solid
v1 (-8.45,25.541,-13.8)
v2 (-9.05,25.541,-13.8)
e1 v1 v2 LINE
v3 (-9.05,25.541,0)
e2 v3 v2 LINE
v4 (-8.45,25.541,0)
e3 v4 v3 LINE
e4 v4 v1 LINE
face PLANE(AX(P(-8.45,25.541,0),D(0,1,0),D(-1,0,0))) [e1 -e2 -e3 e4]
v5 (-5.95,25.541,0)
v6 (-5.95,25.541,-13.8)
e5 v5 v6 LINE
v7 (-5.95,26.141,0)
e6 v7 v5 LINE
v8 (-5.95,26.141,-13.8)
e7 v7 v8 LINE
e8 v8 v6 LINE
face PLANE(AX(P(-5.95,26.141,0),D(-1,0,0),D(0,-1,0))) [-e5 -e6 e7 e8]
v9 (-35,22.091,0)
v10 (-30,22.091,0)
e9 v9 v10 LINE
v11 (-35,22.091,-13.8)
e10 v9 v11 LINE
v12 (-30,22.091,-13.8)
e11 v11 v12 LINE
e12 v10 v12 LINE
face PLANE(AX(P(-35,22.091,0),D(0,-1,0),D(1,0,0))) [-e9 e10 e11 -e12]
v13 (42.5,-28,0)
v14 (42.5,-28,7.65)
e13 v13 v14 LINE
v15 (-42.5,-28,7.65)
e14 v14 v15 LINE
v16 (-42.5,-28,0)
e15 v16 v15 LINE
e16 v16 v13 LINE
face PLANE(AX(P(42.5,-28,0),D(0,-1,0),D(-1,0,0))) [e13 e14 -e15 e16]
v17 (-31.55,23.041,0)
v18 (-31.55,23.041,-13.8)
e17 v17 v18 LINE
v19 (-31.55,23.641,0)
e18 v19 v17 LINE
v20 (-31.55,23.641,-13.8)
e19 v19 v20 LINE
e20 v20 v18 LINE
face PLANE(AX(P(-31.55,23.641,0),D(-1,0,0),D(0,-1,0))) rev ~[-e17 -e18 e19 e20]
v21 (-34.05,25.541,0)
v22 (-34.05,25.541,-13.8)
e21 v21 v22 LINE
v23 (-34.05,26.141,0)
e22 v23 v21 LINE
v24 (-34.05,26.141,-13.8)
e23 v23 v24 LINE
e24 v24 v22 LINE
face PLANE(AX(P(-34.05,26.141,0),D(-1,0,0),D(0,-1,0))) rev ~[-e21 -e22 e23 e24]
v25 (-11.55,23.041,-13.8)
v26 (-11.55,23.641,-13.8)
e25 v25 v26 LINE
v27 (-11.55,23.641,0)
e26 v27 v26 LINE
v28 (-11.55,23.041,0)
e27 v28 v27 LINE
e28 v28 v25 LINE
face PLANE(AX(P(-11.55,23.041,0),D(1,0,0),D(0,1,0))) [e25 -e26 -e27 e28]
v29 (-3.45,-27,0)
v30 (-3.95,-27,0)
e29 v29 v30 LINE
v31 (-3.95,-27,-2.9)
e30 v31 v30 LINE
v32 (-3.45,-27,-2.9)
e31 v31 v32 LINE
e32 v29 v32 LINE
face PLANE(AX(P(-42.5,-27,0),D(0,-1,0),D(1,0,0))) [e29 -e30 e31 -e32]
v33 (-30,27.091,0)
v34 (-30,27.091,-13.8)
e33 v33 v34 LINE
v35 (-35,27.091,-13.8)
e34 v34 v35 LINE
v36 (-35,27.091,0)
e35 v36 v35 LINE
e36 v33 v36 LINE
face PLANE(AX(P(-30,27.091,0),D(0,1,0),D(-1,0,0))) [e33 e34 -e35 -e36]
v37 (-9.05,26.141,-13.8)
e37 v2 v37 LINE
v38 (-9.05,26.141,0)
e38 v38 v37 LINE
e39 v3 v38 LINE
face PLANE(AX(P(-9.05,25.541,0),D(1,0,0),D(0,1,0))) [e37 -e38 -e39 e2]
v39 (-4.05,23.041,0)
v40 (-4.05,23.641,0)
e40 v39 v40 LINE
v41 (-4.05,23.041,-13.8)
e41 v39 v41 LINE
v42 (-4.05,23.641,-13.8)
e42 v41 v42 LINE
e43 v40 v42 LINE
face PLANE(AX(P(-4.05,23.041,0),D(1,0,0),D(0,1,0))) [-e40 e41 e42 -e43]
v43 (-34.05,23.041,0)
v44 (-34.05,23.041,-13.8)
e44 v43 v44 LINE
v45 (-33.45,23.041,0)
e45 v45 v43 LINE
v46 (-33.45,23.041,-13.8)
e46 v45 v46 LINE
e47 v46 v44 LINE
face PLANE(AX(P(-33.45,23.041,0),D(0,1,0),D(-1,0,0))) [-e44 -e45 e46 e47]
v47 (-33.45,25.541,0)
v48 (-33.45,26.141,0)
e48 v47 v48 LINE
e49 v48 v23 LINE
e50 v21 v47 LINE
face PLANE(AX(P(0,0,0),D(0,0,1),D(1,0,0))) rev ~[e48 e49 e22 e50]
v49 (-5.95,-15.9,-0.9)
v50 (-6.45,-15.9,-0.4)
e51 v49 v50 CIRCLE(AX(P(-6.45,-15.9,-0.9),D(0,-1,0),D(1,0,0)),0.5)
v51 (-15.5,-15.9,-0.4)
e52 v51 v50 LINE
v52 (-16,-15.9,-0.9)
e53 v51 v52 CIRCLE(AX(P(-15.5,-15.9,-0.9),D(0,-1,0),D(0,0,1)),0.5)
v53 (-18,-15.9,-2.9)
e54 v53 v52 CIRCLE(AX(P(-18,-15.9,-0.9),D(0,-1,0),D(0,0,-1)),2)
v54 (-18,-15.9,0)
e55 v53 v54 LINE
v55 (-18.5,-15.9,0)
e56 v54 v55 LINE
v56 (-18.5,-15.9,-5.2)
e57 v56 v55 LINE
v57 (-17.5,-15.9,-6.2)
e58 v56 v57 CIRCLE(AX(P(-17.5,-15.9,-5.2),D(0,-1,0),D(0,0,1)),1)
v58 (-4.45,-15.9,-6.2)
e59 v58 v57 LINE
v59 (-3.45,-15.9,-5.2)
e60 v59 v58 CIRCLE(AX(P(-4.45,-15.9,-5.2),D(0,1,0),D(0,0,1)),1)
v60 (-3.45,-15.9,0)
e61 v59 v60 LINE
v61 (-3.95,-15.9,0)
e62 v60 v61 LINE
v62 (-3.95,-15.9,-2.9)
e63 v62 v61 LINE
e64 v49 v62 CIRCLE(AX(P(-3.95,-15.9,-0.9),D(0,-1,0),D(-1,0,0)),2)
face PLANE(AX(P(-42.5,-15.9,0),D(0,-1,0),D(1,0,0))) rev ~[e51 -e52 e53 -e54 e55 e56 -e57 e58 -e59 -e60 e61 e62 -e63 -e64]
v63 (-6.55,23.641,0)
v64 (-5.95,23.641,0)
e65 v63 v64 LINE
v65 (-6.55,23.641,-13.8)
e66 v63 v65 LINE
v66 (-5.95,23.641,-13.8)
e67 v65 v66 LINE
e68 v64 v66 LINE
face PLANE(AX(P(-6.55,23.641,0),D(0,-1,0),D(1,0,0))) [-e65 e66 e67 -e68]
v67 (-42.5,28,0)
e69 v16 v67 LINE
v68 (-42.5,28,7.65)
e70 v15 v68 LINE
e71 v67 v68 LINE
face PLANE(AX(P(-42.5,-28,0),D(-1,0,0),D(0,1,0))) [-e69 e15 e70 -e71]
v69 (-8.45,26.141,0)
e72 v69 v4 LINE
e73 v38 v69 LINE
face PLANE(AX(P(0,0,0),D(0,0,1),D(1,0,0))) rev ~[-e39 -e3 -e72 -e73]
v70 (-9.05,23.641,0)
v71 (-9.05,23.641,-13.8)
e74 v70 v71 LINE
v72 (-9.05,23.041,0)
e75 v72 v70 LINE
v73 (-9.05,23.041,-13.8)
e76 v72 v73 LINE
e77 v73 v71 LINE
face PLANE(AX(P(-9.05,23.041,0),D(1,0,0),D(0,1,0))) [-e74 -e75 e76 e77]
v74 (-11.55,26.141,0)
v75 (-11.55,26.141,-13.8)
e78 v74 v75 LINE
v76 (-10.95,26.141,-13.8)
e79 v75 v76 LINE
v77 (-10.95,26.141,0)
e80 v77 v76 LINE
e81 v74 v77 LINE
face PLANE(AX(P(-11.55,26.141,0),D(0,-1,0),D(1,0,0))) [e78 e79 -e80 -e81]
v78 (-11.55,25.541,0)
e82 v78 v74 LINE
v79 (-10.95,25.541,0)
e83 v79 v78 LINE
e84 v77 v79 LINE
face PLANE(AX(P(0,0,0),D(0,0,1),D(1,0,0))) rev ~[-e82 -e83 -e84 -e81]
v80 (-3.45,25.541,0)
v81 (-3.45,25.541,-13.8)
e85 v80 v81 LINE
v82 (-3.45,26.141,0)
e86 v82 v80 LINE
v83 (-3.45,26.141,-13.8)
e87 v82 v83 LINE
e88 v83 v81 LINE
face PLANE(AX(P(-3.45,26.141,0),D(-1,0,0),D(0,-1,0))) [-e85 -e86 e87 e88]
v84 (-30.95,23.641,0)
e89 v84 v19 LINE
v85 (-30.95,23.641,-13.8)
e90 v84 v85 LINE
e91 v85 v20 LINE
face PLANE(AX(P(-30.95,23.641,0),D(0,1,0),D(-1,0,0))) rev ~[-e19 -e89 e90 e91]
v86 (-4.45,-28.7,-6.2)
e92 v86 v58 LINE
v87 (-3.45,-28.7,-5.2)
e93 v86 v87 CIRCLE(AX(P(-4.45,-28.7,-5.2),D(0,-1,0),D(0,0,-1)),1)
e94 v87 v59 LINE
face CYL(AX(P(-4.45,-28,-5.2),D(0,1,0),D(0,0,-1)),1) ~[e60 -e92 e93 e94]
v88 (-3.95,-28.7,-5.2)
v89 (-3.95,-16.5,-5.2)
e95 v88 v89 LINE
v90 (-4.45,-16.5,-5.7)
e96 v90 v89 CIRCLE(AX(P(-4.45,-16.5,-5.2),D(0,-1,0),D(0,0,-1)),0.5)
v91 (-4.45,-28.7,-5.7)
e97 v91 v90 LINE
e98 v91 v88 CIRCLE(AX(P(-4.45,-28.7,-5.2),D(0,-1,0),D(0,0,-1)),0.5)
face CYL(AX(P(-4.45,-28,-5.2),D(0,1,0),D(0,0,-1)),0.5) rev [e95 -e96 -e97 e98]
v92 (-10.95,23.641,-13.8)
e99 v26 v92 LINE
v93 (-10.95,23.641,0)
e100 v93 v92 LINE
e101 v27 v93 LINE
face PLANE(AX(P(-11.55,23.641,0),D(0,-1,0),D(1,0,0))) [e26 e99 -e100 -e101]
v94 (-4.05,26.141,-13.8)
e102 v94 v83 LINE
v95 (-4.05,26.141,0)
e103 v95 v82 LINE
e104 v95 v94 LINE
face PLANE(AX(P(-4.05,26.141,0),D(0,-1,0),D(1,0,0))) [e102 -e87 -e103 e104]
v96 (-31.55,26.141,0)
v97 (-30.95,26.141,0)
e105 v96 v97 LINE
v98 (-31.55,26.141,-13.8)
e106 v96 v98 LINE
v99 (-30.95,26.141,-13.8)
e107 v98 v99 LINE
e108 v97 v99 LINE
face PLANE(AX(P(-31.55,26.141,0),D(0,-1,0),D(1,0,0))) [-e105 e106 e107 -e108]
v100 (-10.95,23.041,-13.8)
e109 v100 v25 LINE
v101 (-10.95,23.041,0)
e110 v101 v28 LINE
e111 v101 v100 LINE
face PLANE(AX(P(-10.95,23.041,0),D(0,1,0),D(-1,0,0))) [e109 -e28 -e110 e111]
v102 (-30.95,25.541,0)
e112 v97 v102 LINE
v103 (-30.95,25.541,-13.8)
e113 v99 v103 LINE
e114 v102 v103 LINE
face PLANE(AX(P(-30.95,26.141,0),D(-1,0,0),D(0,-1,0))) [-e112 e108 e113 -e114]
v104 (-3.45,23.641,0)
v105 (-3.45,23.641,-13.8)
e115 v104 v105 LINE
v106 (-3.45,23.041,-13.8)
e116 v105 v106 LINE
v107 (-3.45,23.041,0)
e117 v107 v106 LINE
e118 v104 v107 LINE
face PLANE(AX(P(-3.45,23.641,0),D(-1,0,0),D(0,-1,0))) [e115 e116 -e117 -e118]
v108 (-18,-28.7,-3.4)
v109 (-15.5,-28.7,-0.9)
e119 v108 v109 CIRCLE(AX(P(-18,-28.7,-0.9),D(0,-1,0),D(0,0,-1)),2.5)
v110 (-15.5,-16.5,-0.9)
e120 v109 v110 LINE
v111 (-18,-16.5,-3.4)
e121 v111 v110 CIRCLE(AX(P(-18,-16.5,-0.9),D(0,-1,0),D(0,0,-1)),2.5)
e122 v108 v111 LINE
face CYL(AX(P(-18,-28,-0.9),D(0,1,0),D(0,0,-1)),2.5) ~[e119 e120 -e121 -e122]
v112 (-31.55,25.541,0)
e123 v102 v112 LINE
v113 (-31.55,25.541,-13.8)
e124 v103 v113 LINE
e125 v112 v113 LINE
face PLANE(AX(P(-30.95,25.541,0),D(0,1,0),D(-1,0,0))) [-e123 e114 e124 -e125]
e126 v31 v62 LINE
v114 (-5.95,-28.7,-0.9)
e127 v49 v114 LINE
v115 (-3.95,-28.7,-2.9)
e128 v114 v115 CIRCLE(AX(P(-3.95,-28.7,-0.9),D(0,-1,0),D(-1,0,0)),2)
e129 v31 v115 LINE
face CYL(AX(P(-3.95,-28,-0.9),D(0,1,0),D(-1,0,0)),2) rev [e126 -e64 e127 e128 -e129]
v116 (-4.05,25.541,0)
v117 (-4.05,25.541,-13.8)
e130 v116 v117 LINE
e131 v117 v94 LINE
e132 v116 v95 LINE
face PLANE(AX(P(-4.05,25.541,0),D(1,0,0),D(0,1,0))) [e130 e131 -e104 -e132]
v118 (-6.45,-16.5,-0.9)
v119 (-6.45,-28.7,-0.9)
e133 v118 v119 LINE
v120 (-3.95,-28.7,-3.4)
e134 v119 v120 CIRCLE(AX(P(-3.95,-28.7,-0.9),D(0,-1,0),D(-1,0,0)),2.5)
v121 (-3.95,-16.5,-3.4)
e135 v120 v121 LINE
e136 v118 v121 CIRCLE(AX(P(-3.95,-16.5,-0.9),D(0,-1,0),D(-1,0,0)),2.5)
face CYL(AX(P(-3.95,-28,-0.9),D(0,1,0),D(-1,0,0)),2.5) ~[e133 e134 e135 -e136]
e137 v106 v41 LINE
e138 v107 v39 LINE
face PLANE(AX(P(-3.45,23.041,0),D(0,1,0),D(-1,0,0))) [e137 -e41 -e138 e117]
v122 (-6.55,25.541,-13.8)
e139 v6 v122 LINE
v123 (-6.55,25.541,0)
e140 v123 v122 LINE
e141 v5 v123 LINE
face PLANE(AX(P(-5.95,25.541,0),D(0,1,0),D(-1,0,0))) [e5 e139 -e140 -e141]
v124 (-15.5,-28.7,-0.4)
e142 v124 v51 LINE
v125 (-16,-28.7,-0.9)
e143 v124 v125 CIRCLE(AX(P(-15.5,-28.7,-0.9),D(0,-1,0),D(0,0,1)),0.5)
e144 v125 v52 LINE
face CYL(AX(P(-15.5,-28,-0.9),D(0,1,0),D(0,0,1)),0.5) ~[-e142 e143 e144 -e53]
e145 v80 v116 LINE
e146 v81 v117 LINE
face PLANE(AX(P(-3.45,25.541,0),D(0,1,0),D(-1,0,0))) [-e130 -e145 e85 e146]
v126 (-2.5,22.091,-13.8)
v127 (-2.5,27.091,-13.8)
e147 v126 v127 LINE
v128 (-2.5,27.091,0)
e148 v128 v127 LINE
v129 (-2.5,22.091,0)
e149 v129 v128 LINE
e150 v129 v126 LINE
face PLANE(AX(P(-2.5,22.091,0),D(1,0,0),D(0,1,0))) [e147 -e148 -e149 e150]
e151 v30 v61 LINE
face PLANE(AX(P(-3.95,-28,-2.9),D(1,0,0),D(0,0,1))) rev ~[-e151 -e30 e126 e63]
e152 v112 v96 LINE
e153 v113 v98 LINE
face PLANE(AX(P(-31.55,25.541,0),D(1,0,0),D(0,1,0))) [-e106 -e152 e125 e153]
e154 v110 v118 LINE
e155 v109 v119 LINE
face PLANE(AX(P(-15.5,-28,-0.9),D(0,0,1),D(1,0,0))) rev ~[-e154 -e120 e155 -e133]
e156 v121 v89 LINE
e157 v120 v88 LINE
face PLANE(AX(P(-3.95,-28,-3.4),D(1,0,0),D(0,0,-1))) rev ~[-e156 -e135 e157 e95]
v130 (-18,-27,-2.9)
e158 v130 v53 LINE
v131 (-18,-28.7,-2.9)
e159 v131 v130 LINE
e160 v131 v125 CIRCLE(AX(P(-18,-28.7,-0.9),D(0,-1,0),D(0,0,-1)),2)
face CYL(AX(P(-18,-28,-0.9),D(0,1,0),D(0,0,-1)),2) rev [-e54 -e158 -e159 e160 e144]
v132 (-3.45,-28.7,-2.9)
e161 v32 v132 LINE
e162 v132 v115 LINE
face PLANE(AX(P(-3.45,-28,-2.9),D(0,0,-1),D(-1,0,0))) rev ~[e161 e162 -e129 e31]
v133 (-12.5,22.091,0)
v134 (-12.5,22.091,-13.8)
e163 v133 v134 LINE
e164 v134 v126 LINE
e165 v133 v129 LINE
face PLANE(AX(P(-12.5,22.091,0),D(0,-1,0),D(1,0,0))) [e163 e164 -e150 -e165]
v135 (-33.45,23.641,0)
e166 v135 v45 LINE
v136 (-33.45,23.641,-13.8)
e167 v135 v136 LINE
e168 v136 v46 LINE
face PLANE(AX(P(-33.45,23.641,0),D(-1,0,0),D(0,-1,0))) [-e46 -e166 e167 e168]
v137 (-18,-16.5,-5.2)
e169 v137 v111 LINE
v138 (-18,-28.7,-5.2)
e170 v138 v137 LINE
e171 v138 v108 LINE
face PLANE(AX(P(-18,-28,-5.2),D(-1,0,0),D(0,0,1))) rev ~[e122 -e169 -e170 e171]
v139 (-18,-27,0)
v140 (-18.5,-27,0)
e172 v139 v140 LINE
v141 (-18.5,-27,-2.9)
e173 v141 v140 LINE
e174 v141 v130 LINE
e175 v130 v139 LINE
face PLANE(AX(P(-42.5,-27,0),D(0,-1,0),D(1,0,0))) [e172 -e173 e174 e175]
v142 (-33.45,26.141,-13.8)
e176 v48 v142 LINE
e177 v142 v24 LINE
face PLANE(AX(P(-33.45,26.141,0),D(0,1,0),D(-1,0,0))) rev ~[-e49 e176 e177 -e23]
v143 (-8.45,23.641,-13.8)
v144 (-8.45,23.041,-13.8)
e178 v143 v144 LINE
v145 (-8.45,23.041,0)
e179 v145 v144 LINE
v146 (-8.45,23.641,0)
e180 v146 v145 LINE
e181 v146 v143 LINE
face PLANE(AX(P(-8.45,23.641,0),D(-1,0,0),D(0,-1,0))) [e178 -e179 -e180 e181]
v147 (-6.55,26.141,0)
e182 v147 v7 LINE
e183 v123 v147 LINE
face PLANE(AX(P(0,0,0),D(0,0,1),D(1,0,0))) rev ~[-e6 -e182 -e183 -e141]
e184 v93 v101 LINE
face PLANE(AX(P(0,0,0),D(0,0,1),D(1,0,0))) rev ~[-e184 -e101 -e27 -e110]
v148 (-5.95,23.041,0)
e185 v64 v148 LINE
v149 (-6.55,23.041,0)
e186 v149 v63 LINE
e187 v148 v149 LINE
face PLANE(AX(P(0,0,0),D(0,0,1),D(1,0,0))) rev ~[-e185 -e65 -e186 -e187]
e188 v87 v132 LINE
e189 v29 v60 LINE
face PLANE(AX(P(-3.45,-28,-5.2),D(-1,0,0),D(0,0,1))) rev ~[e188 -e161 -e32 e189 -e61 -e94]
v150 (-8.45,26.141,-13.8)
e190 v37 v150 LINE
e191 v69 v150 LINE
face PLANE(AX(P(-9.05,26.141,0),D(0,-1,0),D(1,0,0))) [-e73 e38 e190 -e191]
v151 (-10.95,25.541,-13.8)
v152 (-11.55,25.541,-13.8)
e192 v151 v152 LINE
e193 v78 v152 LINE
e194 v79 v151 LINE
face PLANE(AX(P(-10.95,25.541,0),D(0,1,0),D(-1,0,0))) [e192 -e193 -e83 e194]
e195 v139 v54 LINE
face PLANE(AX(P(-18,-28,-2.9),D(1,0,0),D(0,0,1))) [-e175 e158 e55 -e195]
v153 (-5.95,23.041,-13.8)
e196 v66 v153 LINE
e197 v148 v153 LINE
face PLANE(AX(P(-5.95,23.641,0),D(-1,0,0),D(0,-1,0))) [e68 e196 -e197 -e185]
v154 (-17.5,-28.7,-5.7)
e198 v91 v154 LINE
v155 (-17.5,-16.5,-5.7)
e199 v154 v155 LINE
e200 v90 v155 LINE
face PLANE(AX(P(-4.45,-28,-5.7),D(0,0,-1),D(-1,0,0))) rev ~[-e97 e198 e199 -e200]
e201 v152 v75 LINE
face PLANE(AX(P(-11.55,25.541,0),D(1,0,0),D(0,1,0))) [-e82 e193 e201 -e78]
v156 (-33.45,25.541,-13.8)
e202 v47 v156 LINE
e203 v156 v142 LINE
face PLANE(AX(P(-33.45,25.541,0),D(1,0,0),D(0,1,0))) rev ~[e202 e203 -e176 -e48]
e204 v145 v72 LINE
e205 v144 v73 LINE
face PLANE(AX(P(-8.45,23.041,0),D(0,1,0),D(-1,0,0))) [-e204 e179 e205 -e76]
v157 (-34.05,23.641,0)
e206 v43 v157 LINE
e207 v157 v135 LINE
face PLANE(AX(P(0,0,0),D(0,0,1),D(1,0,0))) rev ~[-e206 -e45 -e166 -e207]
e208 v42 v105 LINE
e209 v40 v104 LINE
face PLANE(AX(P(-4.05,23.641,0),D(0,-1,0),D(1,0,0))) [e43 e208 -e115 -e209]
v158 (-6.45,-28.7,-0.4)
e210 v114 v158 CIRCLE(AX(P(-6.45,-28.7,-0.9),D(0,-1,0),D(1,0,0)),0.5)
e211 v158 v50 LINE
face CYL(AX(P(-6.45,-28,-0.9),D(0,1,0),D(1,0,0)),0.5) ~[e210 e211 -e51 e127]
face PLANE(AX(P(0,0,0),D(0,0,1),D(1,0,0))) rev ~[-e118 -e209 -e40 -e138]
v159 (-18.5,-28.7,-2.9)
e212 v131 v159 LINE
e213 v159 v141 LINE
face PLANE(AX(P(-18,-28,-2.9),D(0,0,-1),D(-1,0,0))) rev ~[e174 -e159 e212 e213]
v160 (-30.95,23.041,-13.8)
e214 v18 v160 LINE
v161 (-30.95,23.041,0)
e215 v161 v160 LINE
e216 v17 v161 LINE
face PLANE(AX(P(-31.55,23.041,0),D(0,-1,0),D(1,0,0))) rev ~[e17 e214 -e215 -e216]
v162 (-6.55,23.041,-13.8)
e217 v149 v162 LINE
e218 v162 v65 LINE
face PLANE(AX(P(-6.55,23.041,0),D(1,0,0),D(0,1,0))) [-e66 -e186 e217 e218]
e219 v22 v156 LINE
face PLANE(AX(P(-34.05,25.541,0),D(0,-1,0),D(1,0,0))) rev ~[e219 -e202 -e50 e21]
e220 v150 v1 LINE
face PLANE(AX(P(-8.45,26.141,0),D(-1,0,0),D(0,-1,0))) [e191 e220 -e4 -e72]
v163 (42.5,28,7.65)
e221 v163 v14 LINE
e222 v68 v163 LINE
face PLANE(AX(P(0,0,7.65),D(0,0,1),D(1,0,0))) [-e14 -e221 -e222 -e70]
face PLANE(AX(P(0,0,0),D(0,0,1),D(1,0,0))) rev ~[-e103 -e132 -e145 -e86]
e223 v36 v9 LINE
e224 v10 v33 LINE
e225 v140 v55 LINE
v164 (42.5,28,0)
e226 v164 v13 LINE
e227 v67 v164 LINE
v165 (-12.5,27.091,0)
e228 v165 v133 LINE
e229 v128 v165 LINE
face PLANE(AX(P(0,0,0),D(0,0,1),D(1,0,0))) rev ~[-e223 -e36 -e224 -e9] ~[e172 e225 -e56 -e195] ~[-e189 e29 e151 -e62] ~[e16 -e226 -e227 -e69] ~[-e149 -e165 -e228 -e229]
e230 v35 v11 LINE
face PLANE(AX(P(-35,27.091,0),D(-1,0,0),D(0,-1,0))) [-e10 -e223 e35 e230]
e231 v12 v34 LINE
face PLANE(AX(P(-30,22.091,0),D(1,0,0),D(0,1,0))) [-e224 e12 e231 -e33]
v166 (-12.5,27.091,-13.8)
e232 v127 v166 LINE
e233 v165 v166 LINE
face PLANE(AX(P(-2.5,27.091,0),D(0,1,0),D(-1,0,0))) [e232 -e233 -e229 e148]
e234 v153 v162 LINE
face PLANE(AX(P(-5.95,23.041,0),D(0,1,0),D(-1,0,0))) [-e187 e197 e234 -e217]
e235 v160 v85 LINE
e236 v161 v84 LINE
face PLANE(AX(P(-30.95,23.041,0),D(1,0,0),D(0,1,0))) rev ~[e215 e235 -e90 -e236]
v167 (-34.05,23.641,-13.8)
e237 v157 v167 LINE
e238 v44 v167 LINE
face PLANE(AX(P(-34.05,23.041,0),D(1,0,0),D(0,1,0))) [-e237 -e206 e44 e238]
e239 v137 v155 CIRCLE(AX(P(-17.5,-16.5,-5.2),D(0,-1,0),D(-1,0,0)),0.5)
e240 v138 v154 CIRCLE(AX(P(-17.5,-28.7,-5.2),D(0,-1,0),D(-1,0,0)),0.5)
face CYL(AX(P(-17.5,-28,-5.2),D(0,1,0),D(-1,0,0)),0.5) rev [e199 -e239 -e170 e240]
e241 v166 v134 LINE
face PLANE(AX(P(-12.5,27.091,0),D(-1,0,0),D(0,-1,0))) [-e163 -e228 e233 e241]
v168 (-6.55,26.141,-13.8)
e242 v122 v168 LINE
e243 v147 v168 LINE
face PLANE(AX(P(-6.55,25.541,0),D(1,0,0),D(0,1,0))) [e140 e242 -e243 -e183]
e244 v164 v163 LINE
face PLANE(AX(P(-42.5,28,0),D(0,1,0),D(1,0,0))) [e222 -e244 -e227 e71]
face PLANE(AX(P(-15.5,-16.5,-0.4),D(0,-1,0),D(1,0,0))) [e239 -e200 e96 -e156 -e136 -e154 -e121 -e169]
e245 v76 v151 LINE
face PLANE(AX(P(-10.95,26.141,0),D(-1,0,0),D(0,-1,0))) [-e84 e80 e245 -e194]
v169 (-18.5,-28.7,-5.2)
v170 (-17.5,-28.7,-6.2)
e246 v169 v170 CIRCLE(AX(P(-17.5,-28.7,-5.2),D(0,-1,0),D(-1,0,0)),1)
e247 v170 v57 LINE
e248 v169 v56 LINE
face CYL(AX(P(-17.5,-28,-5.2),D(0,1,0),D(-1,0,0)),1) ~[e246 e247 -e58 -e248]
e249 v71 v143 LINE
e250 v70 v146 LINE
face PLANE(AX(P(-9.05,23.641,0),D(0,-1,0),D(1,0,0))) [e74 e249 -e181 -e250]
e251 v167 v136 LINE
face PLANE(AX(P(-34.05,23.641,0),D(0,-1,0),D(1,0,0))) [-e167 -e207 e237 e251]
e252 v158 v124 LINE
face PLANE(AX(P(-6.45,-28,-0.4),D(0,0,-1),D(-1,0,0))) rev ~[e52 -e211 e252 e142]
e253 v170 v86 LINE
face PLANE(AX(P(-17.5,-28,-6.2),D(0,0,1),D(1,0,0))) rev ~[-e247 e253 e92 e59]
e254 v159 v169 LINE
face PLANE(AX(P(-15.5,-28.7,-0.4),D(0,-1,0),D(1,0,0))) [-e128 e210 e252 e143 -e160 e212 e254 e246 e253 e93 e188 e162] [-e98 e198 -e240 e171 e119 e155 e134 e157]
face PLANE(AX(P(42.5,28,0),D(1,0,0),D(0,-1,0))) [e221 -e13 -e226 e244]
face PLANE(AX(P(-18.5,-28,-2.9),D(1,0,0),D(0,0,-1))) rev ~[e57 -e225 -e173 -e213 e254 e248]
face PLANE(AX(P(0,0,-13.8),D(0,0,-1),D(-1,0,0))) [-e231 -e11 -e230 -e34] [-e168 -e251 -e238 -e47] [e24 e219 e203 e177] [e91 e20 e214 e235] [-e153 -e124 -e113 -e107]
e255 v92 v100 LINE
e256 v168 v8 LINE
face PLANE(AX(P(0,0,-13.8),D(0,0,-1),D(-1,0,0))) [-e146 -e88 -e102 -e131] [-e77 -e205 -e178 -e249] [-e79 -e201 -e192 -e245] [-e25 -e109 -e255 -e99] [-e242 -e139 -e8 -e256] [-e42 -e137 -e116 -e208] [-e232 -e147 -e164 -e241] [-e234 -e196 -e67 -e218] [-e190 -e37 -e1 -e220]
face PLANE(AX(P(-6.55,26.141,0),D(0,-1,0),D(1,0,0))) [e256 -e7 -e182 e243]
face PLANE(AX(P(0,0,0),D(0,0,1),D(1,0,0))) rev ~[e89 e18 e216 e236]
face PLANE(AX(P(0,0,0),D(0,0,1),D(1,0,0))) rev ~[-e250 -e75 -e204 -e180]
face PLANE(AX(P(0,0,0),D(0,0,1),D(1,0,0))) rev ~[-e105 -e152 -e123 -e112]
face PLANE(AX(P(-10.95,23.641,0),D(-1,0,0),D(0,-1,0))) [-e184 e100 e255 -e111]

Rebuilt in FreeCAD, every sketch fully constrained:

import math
import FreeCAD as App
import Part
import Sketcher
from FreeCAD import Vector


def edges_at(feature, points):
    """Names of the edges that pass closest to the given points."""
    edges = feature.Shape.Edges
    near = lambda p: min(range(len(edges)), key=lambda i: edges[i].distToShape(Part.Vertex(*p))[0])
    return sorted({f"Edge{near(p) + 1}" for p in points})

doc = App.newDocument("Part")
body = doc.addObject("PartDesign::Body", "Body")

sketch1 = body.newObject("Sketcher::SketchObject", "Sketch")
sketch1.AttachmentSupport = (doc.getObject("XY_Plane"), [""])
sketch1.MapMode = "FlatFace"
sketch1.addGeometry([
    Part.LineSegment(Vector(42.5, 28, 0), Vector(-42.5, 28, 0)),
    Part.LineSegment(Vector(-42.5, 28, 0), Vector(-42.5, -28, 0)),
    Part.LineSegment(Vector(-42.5, -28, 0), Vector(42.5, -28, 0)),
    Part.LineSegment(Vector(42.5, -28, 0), Vector(42.5, 28, 0)),
], False)
sketch1.addConstraint([
    Sketcher.Constraint("Coincident", 0, 2, 1, 1),
    Sketcher.Constraint("Coincident", 1, 2, 2, 1),
    Sketcher.Constraint("Coincident", 2, 2, 3, 1),
    Sketcher.Constraint("Coincident", 3, 2, 0, 1),
    Sketcher.Constraint("Horizontal", 0),
    Sketcher.Constraint("Vertical", 1),
    Sketcher.Constraint("Horizontal", 2),
    Sketcher.Constraint("Vertical", 3),
    Sketcher.Constraint("Symmetric", 0, 2, 2, 2, -1, 1),
    Sketcher.Constraint("DistanceX", 0, 2, 0, 1, 85.0),
    Sketcher.Constraint("DistanceY", 1, 2, 1, 1, 56.0),
])
pad1 = body.newObject("PartDesign::Pad", "Pad")
pad1.Profile = sketch1
pad1.Length = 7.65

sketch2 = body.newObject("Sketcher::SketchObject", "Sketch001")
sketch2.AttachmentSupport = (doc.getObject("XY_Plane"), [""])
sketch2.MapMode = "FlatFace"
sketch2.addGeometry([
    Part.LineSegment(Vector(-35, 27.091, 0), Vector(-30, 27.091, 0)),
    Part.LineSegment(Vector(-30, 27.091, 0), Vector(-30, 22.091, 0)),
    Part.LineSegment(Vector(-30, 22.091, 0), Vector(-35, 22.091, 0)),
    Part.LineSegment(Vector(-35, 22.091, 0), Vector(-35, 27.091, 0)),
    Part.LineSegment(Vector(-30.95, 23.041, 0), Vector(-30.95, 23.641, 0)),
    Part.LineSegment(Vector(-30.95, 23.641, 0), Vector(-31.55, 23.641, 0)),
    Part.LineSegment(Vector(-31.55, 23.641, 0), Vector(-31.55, 23.041, 0)),
    Part.LineSegment(Vector(-31.55, 23.041, 0), Vector(-30.95, 23.041, 0)),
    Part.LineSegment(Vector(-33.45, 23.641, 0), Vector(-34.05, 23.641, 0)),
    Part.LineSegment(Vector(-34.05, 23.641, 0), Vector(-34.05, 23.041, 0)),
    Part.LineSegment(Vector(-34.05, 23.041, 0), Vector(-33.45, 23.041, 0)),
    Part.LineSegment(Vector(-33.45, 23.041, 0), Vector(-33.45, 23.641, 0)),
    Part.LineSegment(Vector(-31.55, 25.541, 0), Vector(-30.95, 25.541, 0)),
    Part.LineSegment(Vector(-30.95, 25.541, 0), Vector(-30.95, 26.141, 0)),
    Part.LineSegment(Vector(-30.95, 26.141, 0), Vector(-31.55, 26.141, 0)),
    Part.LineSegment(Vector(-31.55, 26.141, 0), Vector(-31.55, 25.541, 0)),
    Part.LineSegment(Vector(-34.05, 26.141, 0), Vector(-34.05, 25.541, 0)),
    Part.LineSegment(Vector(-34.05, 25.541, 0), Vector(-33.45, 25.541, 0)),
    Part.LineSegment(Vector(-33.45, 25.541, 0), Vector(-33.45, 26.141, 0)),
    Part.LineSegment(Vector(-33.45, 26.141, 0), Vector(-34.05, 26.141, 0)),
    Part.LineSegment(Vector(-2.5, 22.091, 0), Vector(-12.5, 22.091, 0)),
    Part.LineSegment(Vector(-12.5, 22.091, 0), Vector(-12.5, 27.091, 0)),
    Part.LineSegment(Vector(-12.5, 27.091, 0), Vector(-2.5, 27.091, 0)),
    Part.LineSegment(Vector(-2.5, 27.091, 0), Vector(-2.5, 22.091, 0)),
    Part.LineSegment(Vector(-4.05, 23.641, 0), Vector(-4.05, 23.041, 0)),
    Part.LineSegment(Vector(-4.05, 23.041, 0), Vector(-3.45, 23.041, 0)),
    Part.LineSegment(Vector(-3.45, 23.041, 0), Vector(-3.45, 23.641, 0)),
    Part.LineSegment(Vector(-3.45, 23.641, 0), Vector(-4.05, 23.641, 0)),
    Part.LineSegment(Vector(-6.55, 23.641, 0), Vector(-6.55, 23.041, 0)),
    Part.LineSegment(Vector(-6.55, 23.041, 0), Vector(-5.95, 23.041, 0)),
    Part.LineSegment(Vector(-5.95, 23.041, 0), Vector(-5.95, 23.641, 0)),
    Part.LineSegment(Vector(-5.95, 23.641, 0), Vector(-6.55, 23.641, 0)),
    Part.LineSegment(Vector(-9.05, 23.641, 0), Vector(-9.05, 23.041, 0)),
    Part.LineSegment(Vector(-9.05, 23.041, 0), Vector(-8.45, 23.041, 0)),
    Part.LineSegment(Vector(-8.45, 23.041, 0), Vector(-8.45, 23.641, 0)),
    Part.LineSegment(Vector(-8.45, 23.641, 0), Vector(-9.05, 23.641, 0)),
    Part.LineSegment(Vector(-10.95, 23.641, 0), Vector(-11.55, 23.641, 0)),
    Part.LineSegment(Vector(-11.55, 23.641, 0), Vector(-11.55, 23.041, 0)),
    Part.LineSegment(Vector(-11.55, 23.041, 0), Vector(-10.95, 23.041, 0)),
    Part.LineSegment(Vector(-10.95, 23.041, 0), Vector(-10.95, 23.641, 0)),
    Part.LineSegment(Vector(-4.05, 26.141, 0), Vector(-4.05, 25.541, 0)),
    Part.LineSegment(Vector(-4.05, 25.541, 0), Vector(-3.45, 25.541, 0)),
    Part.LineSegment(Vector(-3.45, 25.541, 0), Vector(-3.45, 26.141, 0)),
    Part.LineSegment(Vector(-3.45, 26.141, 0), Vector(-4.05, 26.141, 0)),
    Part.LineSegment(Vector(-6.55, 26.141, 0), Vector(-6.55, 25.541, 0)),
    Part.LineSegment(Vector(-6.55, 25.541, 0), Vector(-5.95, 25.541, 0)),
    Part.LineSegment(Vector(-5.95, 25.541, 0), Vector(-5.95, 26.141, 0)),
    Part.LineSegment(Vector(-5.95, 26.141, 0), Vector(-6.55, 26.141, 0)),
    Part.LineSegment(Vector(-9.05, 26.141, 0), Vector(-9.05, 25.541, 0)),
    Part.LineSegment(Vector(-9.05, 25.541, 0), Vector(-8.45, 25.541, 0)),
    Part.LineSegment(Vector(-8.45, 25.541, 0), Vector(-8.45, 26.141, 0)),
    Part.LineSegment(Vector(-8.45, 26.141, 0), Vector(-9.05, 26.141, 0)),
    Part.LineSegment(Vector(-11.55, 26.141, 0), Vector(-11.55, 25.541, 0)),
    Part.LineSegment(Vector(-11.55, 25.541, 0), Vector(-10.95, 25.541, 0)),
    Part.LineSegment(Vector(-10.95, 25.541, 0), Vector(-10.95, 26.141, 0)),
    Part.LineSegment(Vector(-10.95, 26.141, 0), Vector(-11.55, 26.141, 0)),
], False)
sketch2.addConstraint([
    Sketcher.Constraint("Coincident", 0, 2, 1, 1),
    Sketcher.Constraint("Coincident", 1, 2, 2, 1),
    Sketcher.Constraint("Coincident", 2, 2, 3, 1),
    Sketcher.Constraint("Coincident", 3, 2, 0, 1),
    Sketcher.Constraint("Coincident", 4, 2, 5, 1),
    Sketcher.Constraint("Coincident", 5, 2, 6, 1),
    Sketcher.Constraint("Coincident", 6, 2, 7, 1),
    Sketcher.Constraint("Coincident", 7, 2, 4, 1),
    Sketcher.Constraint("Coincident", 8, 2, 9, 1),
    Sketcher.Constraint("Coincident", 9, 2, 10, 1),
    Sketcher.Constraint("Coincident", 10, 2, 11, 1),
    Sketcher.Constraint("Coincident", 11, 2, 8, 1),
    Sketcher.Constraint("Coincident", 12, 2, 13, 1),
    Sketcher.Constraint("Coincident", 13, 2, 14, 1),
    Sketcher.Constraint("Coincident", 14, 2, 15, 1),
    Sketcher.Constraint("Coincident", 15, 2, 12, 1),
    Sketcher.Constraint("Coincident", 16, 2, 17, 1),
    Sketcher.Constraint("Coincident", 17, 2, 18, 1),
    Sketcher.Constraint("Coincident", 18, 2, 19, 1),
    Sketcher.Constraint("Coincident", 19, 2, 16, 1),
    Sketcher.Constraint("Coincident", 20, 2, 21, 1),
    Sketcher.Constraint("Coincident", 21, 2, 22, 1),
    Sketcher.Constraint("Coincident", 22, 2, 23, 1),
    Sketcher.Constraint("Coincident", 23, 2, 20, 1),
    Sketcher.Constraint("Coincident", 24, 2, 25, 1),
    Sketcher.Constraint("Coincident", 25, 2, 26, 1),
    Sketcher.Constraint("Coincident", 26, 2, 27, 1),
    Sketcher.Constraint("Coincident", 27, 2, 24, 1),
    Sketcher.Constraint("Coincident", 28, 2, 29, 1),
    Sketcher.Constraint("Coincident", 29, 2, 30, 1),
    Sketcher.Constraint("Coincident", 30, 2, 31, 1),
    Sketcher.Constraint("Coincident", 31, 2, 28, 1),
    Sketcher.Constraint("Coincident", 32, 2, 33, 1),
    Sketcher.Constraint("Coincident", 33, 2, 34, 1),
    Sketcher.Constraint("Coincident", 34, 2, 35, 1),
    Sketcher.Constraint("Coincident", 35, 2, 32, 1),
    Sketcher.Constraint("Coincident", 36, 2, 37, 1),
    Sketcher.Constraint("Coincident", 37, 2, 38, 1),
    Sketcher.Constraint("Coincident", 38, 2, 39, 1),
    Sketcher.Constraint("Coincident", 39, 2, 36, 1),
    Sketcher.Constraint("Coincident", 40, 2, 41, 1),
    Sketcher.Constraint("Coincident", 41, 2, 42, 1),
    Sketcher.Constraint("Coincident", 42, 2, 43, 1),
    Sketcher.Constraint("Coincident", 43, 2, 40, 1),
    Sketcher.Constraint("Coincident", 44, 2, 45, 1),
    Sketcher.Constraint("Coincident", 45, 2, 46, 1),
    Sketcher.Constraint("Coincident", 46, 2, 47, 1),
    Sketcher.Constraint("Coincident", 47, 2, 44, 1),
    Sketcher.Constraint("Coincident", 48, 2, 49, 1),
    Sketcher.Constraint("Coincident", 49, 2, 50, 1),
    Sketcher.Constraint("Coincident", 50, 2, 51, 1),
    Sketcher.Constraint("Coincident", 51, 2, 48, 1),
    Sketcher.Constraint("Coincident", 52, 2, 53, 1),
    Sketcher.Constraint("Coincident", 53, 2, 54, 1),
    Sketcher.Constraint("Coincident", 54, 2, 55, 1),
    Sketcher.Constraint("Coincident", 55, 2, 52, 1),
    Sketcher.Constraint("Horizontal", 0),
    Sketcher.Constraint("Vertical", 1),
    Sketcher.Constraint("Horizontal", 2),
    Sketcher.Constraint("Vertical", 3),
    Sketcher.Constraint("Vertical", 4),
    Sketcher.Constraint("Horizontal", 5),
    Sketcher.Constraint("Vertical", 6),
    Sketcher.Constraint("Horizontal", 7),
    Sketcher.Constraint("Horizontal", 8),
    Sketcher.Constraint("Vertical", 9),
    Sketcher.Constraint("Horizontal", 10),
    Sketcher.Constraint("Vertical", 11),
    Sketcher.Constraint("Horizontal", 12),
    Sketcher.Constraint("Vertical", 13),
    Sketcher.Constraint("Horizontal", 14),
    Sketcher.Constraint("Vertical", 15),
    Sketcher.Constraint("Vertical", 16),
    Sketcher.Constraint("Horizontal", 17),
    Sketcher.Constraint("Vertical", 18),
    Sketcher.Constraint("Horizontal", 19),
    Sketcher.Constraint("Horizontal", 20),
    Sketcher.Constraint("Vertical", 21),
    Sketcher.Constraint("Horizontal", 22),
    Sketcher.Constraint("Vertical", 23),
    Sketcher.Constraint("Vertical", 24),
    Sketcher.Constraint("Horizontal", 25),
    Sketcher.Constraint("Vertical", 26),
    Sketcher.Constraint("Horizontal", 27),
    Sketcher.Constraint("Vertical", 28),
    Sketcher.Constraint("Horizontal", 29),
    Sketcher.Constraint("Vertical", 30),
    Sketcher.Constraint("Horizontal", 31),
    Sketcher.Constraint("Vertical", 32),
    Sketcher.Constraint("Horizontal", 33),
    Sketcher.Constraint("Vertical", 34),
    Sketcher.Constraint("Horizontal", 35),
    Sketcher.Constraint("Horizontal", 36),
    Sketcher.Constraint("Vertical", 37),
    Sketcher.Constraint("Horizontal", 38),
    Sketcher.Constraint("Vertical", 39),
    Sketcher.Constraint("Vertical", 40),
    Sketcher.Constraint("Horizontal", 41),
    Sketcher.Constraint("Vertical", 42),
    Sketcher.Constraint("Horizontal", 43),
    Sketcher.Constraint("Vertical", 44),
    Sketcher.Constraint("Horizontal", 45),
    Sketcher.Constraint("Vertical", 46),
    Sketcher.Constraint("Horizontal", 47),
    Sketcher.Constraint("Vertical", 48),
    Sketcher.Constraint("Horizontal", 49),
    Sketcher.Constraint("Vertical", 50),
    Sketcher.Constraint("Horizontal", 51),
    Sketcher.Constraint("Vertical", 52),
    Sketcher.Constraint("Horizontal", 53),
    Sketcher.Constraint("Vertical", 54),
    Sketcher.Constraint("Horizontal", 55),
    Sketcher.Constraint("Horizontal", 5, 2, 8, 2),
    Sketcher.Constraint("Horizontal", 7, 2, 9, 2),
    Sketcher.Constraint("Horizontal", 15, 2, 16, 2),
    Sketcher.Constraint("Horizontal", 14, 2, 18, 2),
    Sketcher.Constraint("Horizontal", 2, 2, 20, 2),
    Sketcher.Constraint("Horizontal", 3, 2, 21, 2),
    Sketcher.Constraint("Horizontal", 10, 2, 24, 2),
    Sketcher.Constraint("Horizontal", 11, 2, 26, 2),
    Sketcher.Constraint("Horizontal", 25, 2, 28, 2),
    Sketcher.Constraint("Horizontal", 27, 2, 30, 2),
    Sketcher.Constraint("Horizontal", 29, 2, 32, 2),
    Sketcher.Constraint("Horizontal", 31, 2, 34, 2),
    Sketcher.Constraint("Horizontal", 35, 2, 36, 2),
    Sketcher.Constraint("Horizontal", 33, 2, 37, 2),
    Sketcher.Constraint("Horizontal", 17, 2, 40, 2),
    Sketcher.Constraint("Horizontal", 19, 2, 42, 2),
    Sketcher.Constraint("Horizontal", 41, 2, 44, 2),
    Sketcher.Constraint("Horizontal", 43, 2, 46, 2),
    Sketcher.Constraint("Horizontal", 45, 2, 48, 2),
    Sketcher.Constraint("Horizontal", 47, 2, 50, 2),
    Sketcher.Constraint("Horizontal", 49, 2, 52, 2),
    Sketcher.Constraint("Horizontal", 51, 2, 54, 2),
    Sketcher.Constraint("Vertical", 7, 2, 12, 2),
    Sketcher.Constraint("Vertical", 6, 2, 14, 2),
    Sketcher.Constraint("Vertical", 9, 2, 16, 2),
    Sketcher.Constraint("Vertical", 11, 2, 17, 2),
    Sketcher.Constraint("Vertical", 27, 2, 40, 2),
    Sketcher.Constraint("Vertical", 26, 2, 41, 2),
    Sketcher.Constraint("Vertical", 31, 2, 44, 2),
    Sketcher.Constraint("Vertical", 30, 2, 45, 2),
    Sketcher.Constraint("Vertical", 35, 2, 48, 2),
    Sketcher.Constraint("Vertical", 34, 2, 49, 2),
    Sketcher.Constraint("Vertical", 37, 2, 52, 2),
    Sketcher.Constraint("Vertical", 39, 2, 53, 2),
    Sketcher.Constraint("Equal", 7, 8),
    Sketcher.Constraint("Equal", 19, 25),
    Sketcher.Constraint("Equal", 27, 29),
    Sketcher.Constraint("Equal", 31, 33),
    Sketcher.Constraint("Equal", 35, 36),
    Sketcher.Constraint("Equal", 2, 1),
    Sketcher.Constraint("Equal", 55, 4),
    Sketcher.Constraint("Equal", 11, 13),
    Sketcher.Constraint("DistanceX", 0, 1, 0, 2, 5.0),
    Sketcher.Constraint("DistanceX", 20, 2, 20, 1, 10.0),
    Sketcher.Constraint("DistanceX", 5, 2, 5, 1, 0.6),
    Sketcher.Constraint("DistanceX", 22, 2, -1, 1, 2.5),
    Sketcher.Constraint("DistanceX", 8, 2, 5, 2, 2.5),
    Sketcher.Constraint("DistanceY", 7, 2, 12, 2, 2.5),
    Sketcher.Constraint("DistanceX", 1, 2, 20, 2, 17.5),
    Sketcher.Constraint("DistanceX", 28, 2, 24, 2, 2.5),
    Sketcher.Constraint("DistanceX", 32, 2, 28, 2, 2.5),
    Sketcher.Constraint("DistanceX", 36, 2, 35, 2, 2.5),
    Sketcher.Constraint("DistanceX", 4, 2, -1, 1, 30.95),
    Sketcher.Constraint("DistanceX", 24, 2, -1, 1, 4.05),
    Sketcher.Constraint("DistanceY", 1, 2, 4, 2, 1.55),
    Sketcher.Constraint("DistanceY", -1, 1, 0, 2, 27.091),
])
pad2 = body.newObject("PartDesign::Pad", "Pad001")
pad2.Profile = sketch2
pad2.Length = 13.8
pad2.Reversed = True

sketch3 = body.newObject("Sketcher::SketchObject", "Sketch002")
sketch3.AttachmentSupport = (doc.getObject("XZ_Plane"), [""])
sketch3.MapMode = "FlatFace"
sketch3.AttachmentOffset = App.Placement(Vector(0, 0, 28), App.Rotation())
sketch3.addGeometry([
    Part.LineSegment(Vector(-3.45, 0, 0), Vector(-3.95, 0, 0)),
    Part.LineSegment(Vector(-3.95, 0, 0), Vector(-3.95, -2.9, 0)),
    Part.ArcOfCircle(Part.Circle(Vector(-3.95, -0.9, 0), Vector(0, 0, 1), 2), math.radians(180), math.radians(270)),
    Part.ArcOfCircle(Part.Circle(Vector(-6.45, -0.9, 0), Vector(0, 0, 1), 0.5), math.radians(0), math.radians(90)),
    Part.LineSegment(Vector(-6.45, -0.4, 0), Vector(-15.5, -0.4, 0)),
    Part.ArcOfCircle(Part.Circle(Vector(-15.5, -0.9, 0), Vector(0, 0, 1), 0.5), math.radians(90), math.radians(180)),
    Part.ArcOfCircle(Part.Circle(Vector(-18, -0.9, 0), Vector(0, 0, 1), 2), math.radians(-90), math.radians(0)),
    Part.LineSegment(Vector(-18, -2.9, 0), Vector(-18, 0, 0)),
    Part.LineSegment(Vector(-18, 0, 0), Vector(-18.5, 0, 0)),
    Part.LineSegment(Vector(-18.5, 0, 0), Vector(-18.5, -6.2, 0)),
    Part.LineSegment(Vector(-18.5, -6.2, 0), Vector(-3.45, -6.2, 0)),
    Part.LineSegment(Vector(-3.45, -6.2, 0), Vector(-3.45, 0, 0)),
], False)
sketch3.addConstraint([
    Sketcher.Constraint("Coincident", 0, 2, 1, 1),
    Sketcher.Constraint("Coincident", 1, 2, 2, 2),
    Sketcher.Constraint("Tangent", 2, 1, 3, 1),
    Sketcher.Constraint("Tangent", 3, 2, 4, 1),
    Sketcher.Constraint("Tangent", 4, 2, 5, 1),
    Sketcher.Constraint("Tangent", 5, 2, 6, 2),
    Sketcher.Constraint("Coincident", 6, 1, 7, 1),
    Sketcher.Constraint("Coincident", 7, 2, 8, 1),
    Sketcher.Constraint("Coincident", 8, 2, 9, 1),
    Sketcher.Constraint("Coincident", 9, 2, 10, 1),
    Sketcher.Constraint("Coincident", 10, 2, 11, 1),
    Sketcher.Constraint("Coincident", 11, 2, 0, 1),
    Sketcher.Constraint("Horizontal", 0),
    Sketcher.Constraint("Vertical", 1),
    Sketcher.Constraint("Horizontal", 4),
    Sketcher.Constraint("Vertical", 7),
    Sketcher.Constraint("Horizontal", 8),
    Sketcher.Constraint("Vertical", 9),
    Sketcher.Constraint("Horizontal", 10),
    Sketcher.Constraint("Vertical", 11),
    Sketcher.Constraint("Equal", 3, 5),
    Sketcher.Constraint("Equal", 2, 6),
    Sketcher.Constraint("PointOnObject", 0, 2, -1),
    Sketcher.Constraint("PointOnObject", 7, 2, -1),
    Sketcher.Constraint("Horizontal", 2, 3, 3, 3),
    Sketcher.Constraint("Horizontal", 5, 3, 6, 3),
    Sketcher.Constraint("Vertical", 2, 3, 0, 2),
    Sketcher.Constraint("Equal", 0, 8),
    Sketcher.Constraint("Radius", 2, 2.0),
    Sketcher.Constraint("Radius", 3, 0.5),
    Sketcher.Constraint("DistanceX", 0, 2, 0, 1, 0.5),
    Sketcher.Constraint("DistanceY", 9, 2, 9, 1, 6.2),
    Sketcher.Constraint("DistanceX", 6, 1, 5, 2, 2.0),
    Sketcher.Constraint("DistanceY", 9, 2, 6, 1, 3.3),
    Sketcher.Constraint("DistanceX", 6, 3, -1, 1, 18.0),
    Sketcher.Constraint("DistanceX", 4, 2, 4, 1, 9.05),
])
pad3 = body.newObject("PartDesign::Pad", "Pad002")
pad3.Profile = sketch3
pad3.Length = 12.1
pad3.Reversed = True
doc.recompute()

fillet = body.newObject("PartDesign::Fillet", "Fillet")
fillet.Base = (pad3, edges_at(pad3, [(-18.5, -21.95, -6.2), (-3.45, -21.95, -6.2)]))
fillet.Radius = 1

sketch4 = body.newObject("Sketcher::SketchObject", "Sketch003")
sketch4.AttachmentSupport = (doc.getObject("XZ_Plane"), [""])
sketch4.MapMode = "FlatFace"
sketch4.AttachmentOffset = App.Placement(Vector(0, 0, 28), App.Rotation())
sketch4.addGeometry([
    Part.LineSegment(Vector(-3.45, -2.9, 0), Vector(-3.45, 0, 0)),
    Part.LineSegment(Vector(-3.45, 0, 0), Vector(-3.95, 0, 0)),
    Part.LineSegment(Vector(-3.95, 0, 0), Vector(-3.95, -2.9, 0)),
    Part.LineSegment(Vector(-3.95, -2.9, 0), Vector(-3.45, -2.9, 0)),
    Part.LineSegment(Vector(-18, -2.9, 0), Vector(-18, 0, 0)),
    Part.LineSegment(Vector(-18, 0, 0), Vector(-18.5, 0, 0)),
    Part.LineSegment(Vector(-18.5, 0, 0), Vector(-18.5, -2.9, 0)),
    Part.LineSegment(Vector(-18.5, -2.9, 0), Vector(-18, -2.9, 0)),
], False)
sketch4.addConstraint([
    Sketcher.Constraint("Coincident", 0, 2, 1, 1),
    Sketcher.Constraint("Coincident", 1, 2, 2, 1),
    Sketcher.Constraint("Coincident", 2, 2, 3, 1),
    Sketcher.Constraint("Coincident", 3, 2, 0, 1),
    Sketcher.Constraint("Coincident", 4, 2, 5, 1),
    Sketcher.Constraint("Coincident", 5, 2, 6, 1),
    Sketcher.Constraint("Coincident", 6, 2, 7, 1),
    Sketcher.Constraint("Coincident", 7, 2, 4, 1),
    Sketcher.Constraint("Vertical", 0),
    Sketcher.Constraint("Horizontal", 1),
    Sketcher.Constraint("Vertical", 2),
    Sketcher.Constraint("Horizontal", 3),
    Sketcher.Constraint("Vertical", 4),
    Sketcher.Constraint("Horizontal", 5),
    Sketcher.Constraint("Vertical", 6),
    Sketcher.Constraint("Horizontal", 7),
    Sketcher.Constraint("PointOnObject", 0, 2, -1),
    Sketcher.Constraint("PointOnObject", 4, 2, -1),
    Sketcher.Constraint("Horizontal", 3, 2, 6, 2),
    Sketcher.Constraint("Equal", 3, 5),
    Sketcher.Constraint("DistanceX", 1, 2, 1, 1, 0.5),
    Sketcher.Constraint("DistanceY", 0, 1, 0, 2, 2.9),
    Sketcher.Constraint("DistanceX", 4, 2, -1, 1, 18.0),
    Sketcher.Constraint("DistanceX", 0, 2, -1, 1, 3.45),
])
pocket1 = body.newObject("PartDesign::Pocket", "Pocket")
pocket1.Profile = sketch4
pocket1.Length = 1

sketch5 = body.newObject("Sketcher::SketchObject", "Sketch004")
sketch5.AttachmentSupport = (doc.getObject("XZ_Plane"), [""])
sketch5.MapMode = "FlatFace"
sketch5.AttachmentOffset = App.Placement(Vector(0, 0, 28), App.Rotation())
sketch5.addGeometry([
    Part.LineSegment(Vector(-18, -3.4, 0), Vector(-18, -5.2, 0)),
    Part.ArcOfCircle(Part.Circle(Vector(-17.5, -5.2, 0), Vector(0, 0, 1), 0.5), math.radians(180), math.radians(270)),
    Part.LineSegment(Vector(-17.5, -5.7, 0), Vector(-4.45, -5.7, 0)),
    Part.ArcOfCircle(Part.Circle(Vector(-4.45, -5.2, 0), Vector(0, 0, 1), 0.5), math.radians(-90), math.radians(0)),
    Part.LineSegment(Vector(-3.95, -5.2, 0), Vector(-3.95, -3.4, 0)),
    Part.ArcOfCircle(Part.Circle(Vector(-3.95, -0.9, 0), Vector(0, 0, 1), 2.5), math.radians(180), math.radians(270)),
    Part.LineSegment(Vector(-6.45, -0.9, 0), Vector(-15.5, -0.9, 0)),
    Part.ArcOfCircle(Part.Circle(Vector(-18, -0.9, 0), Vector(0, 0, 1), 2.5), math.radians(-90), math.radians(0)),
], False)
sketch5.addConstraint([
    Sketcher.Constraint("Tangent", 0, 2, 1, 1),
    Sketcher.Constraint("Tangent", 1, 2, 2, 1),
    Sketcher.Constraint("Tangent", 2, 2, 3, 1),
    Sketcher.Constraint("Tangent", 3, 2, 4, 1),
    Sketcher.Constraint("Coincident", 4, 2, 5, 2),
    Sketcher.Constraint("Coincident", 5, 1, 6, 1),
    Sketcher.Constraint("Coincident", 6, 2, 7, 2),
    Sketcher.Constraint("Coincident", 7, 1, 0, 1),
    Sketcher.Constraint("Vertical", 0),
    Sketcher.Constraint("Horizontal", 2),
    Sketcher.Constraint("Vertical", 4),
    Sketcher.Constraint("Horizontal", 6),
    Sketcher.Constraint("Equal", 1, 3),
    Sketcher.Constraint("Equal", 5, 7),
    Sketcher.Constraint("Horizontal", 5, 3, 7, 3),
    Sketcher.Constraint("Horizontal", 7, 3, 5, 1),
    Sketcher.Constraint("Vertical", 7, 3, 0, 2),
    Sketcher.Constraint("Vertical", 5, 3, 3, 2),
    Sketcher.Constraint("Radius", 1, 0.5),
    Sketcher.Constraint("Radius", 5, 2.5),
    Sketcher.Constraint("DistanceY", 0, 2, 0, 1, 1.8),
    Sketcher.Constraint("DistanceX", 7, 3, -1, 1, 18.0),
    Sketcher.Constraint("DistanceX", 2, 1, 2, 2, 13.05),
    Sketcher.Constraint("DistanceY", 1, 3, -1, 1, 5.2),
])
pocket2 = body.newObject("PartDesign::Pocket", "Pocket001")
pocket2.Profile = sketch5
pocket2.Length = 11.5

sketch6 = body.newObject("Sketcher::SketchObject", "Sketch005")
sketch6.AttachmentSupport = (doc.getObject("XZ_Plane"), [""])
sketch6.MapMode = "FlatFace"
sketch6.AttachmentOffset = App.Placement(Vector(0, 0, 28), App.Rotation())
sketch6.addGeometry([
    Part.LineSegment(Vector(-3.45, -5.2, 0), Vector(-3.45, -2.9, 0)),
    Part.LineSegment(Vector(-3.45, -2.9, 0), Vector(-3.95, -2.9, 0)),
    Part.ArcOfCircle(Part.Circle(Vector(-3.95, -0.9, 0), Vector(0, 0, 1), 2), math.radians(180), math.radians(270)),
    Part.ArcOfCircle(Part.Circle(Vector(-6.45, -0.9, 0), Vector(0, 0, 1), 0.5), math.radians(0), math.radians(90)),
    Part.LineSegment(Vector(-6.45, -0.4, 0), Vector(-15.5, -0.4, 0)),
    Part.ArcOfCircle(Part.Circle(Vector(-15.5, -0.9, 0), Vector(0, 0, 1), 0.5), math.radians(90), math.radians(180)),
    Part.ArcOfCircle(Part.Circle(Vector(-18, -0.9, 0), Vector(0, 0, 1), 2), math.radians(-90), math.radians(0)),
    Part.LineSegment(Vector(-18, -2.9, 0), Vector(-18.5, -2.9, 0)),
    Part.LineSegment(Vector(-18.5, -2.9, 0), Vector(-18.5, -5.2, 0)),
    Part.ArcOfCircle(Part.Circle(Vector(-17.5, -5.2, 0), Vector(0, 0, 1), 1), math.radians(180), math.radians(270)),
    Part.LineSegment(Vector(-17.5, -6.2, 0), Vector(-4.45, -6.2, 0)),
    Part.ArcOfCircle(Part.Circle(Vector(-4.45, -5.2, 0), Vector(0, 0, 1), 1), math.radians(-90), math.radians(0)),
    Part.LineSegment(Vector(-15.5, -0.9, 0), Vector(-6.45, -0.9, 0)),
    Part.ArcOfCircle(Part.Circle(Vector(-3.95, -0.9, 0), Vector(0, 0, 1), 2.5), math.radians(180), math.radians(270)),
    Part.LineSegment(Vector(-3.95, -3.4, 0), Vector(-3.95, -5.2, 0)),
    Part.ArcOfCircle(Part.Circle(Vector(-4.45, -5.2, 0), Vector(0, 0, 1), 0.5), math.radians(-90), math.radians(0)),
    Part.LineSegment(Vector(-4.45, -5.7, 0), Vector(-17.5, -5.7, 0)),
    Part.ArcOfCircle(Part.Circle(Vector(-17.5, -5.2, 0), Vector(0, 0, 1), 0.5), math.radians(180), math.radians(270)),
    Part.LineSegment(Vector(-18, -5.2, 0), Vector(-18, -3.4, 0)),
    Part.ArcOfCircle(Part.Circle(Vector(-18, -0.9, 0), Vector(0, 0, 1), 2.5), math.radians(-90), math.radians(0)),
], False)
sketch6.addConstraint([
    Sketcher.Constraint("Coincident", 0, 2, 1, 1),
    Sketcher.Constraint("Tangent", 1, 2, 2, 2),
    Sketcher.Constraint("Tangent", 2, 1, 3, 1),
    Sketcher.Constraint("Tangent", 3, 2, 4, 1),
    Sketcher.Constraint("Tangent", 4, 2, 5, 1),
    Sketcher.Constraint("Tangent", 5, 2, 6, 2),
    Sketcher.Constraint("Tangent", 6, 1, 7, 1),
    Sketcher.Constraint("Coincident", 7, 2, 8, 1),
    Sketcher.Constraint("Tangent", 8, 2, 9, 1),
    Sketcher.Constraint("Tangent", 9, 2, 10, 1),
    Sketcher.Constraint("Tangent", 10, 2, 11, 1),
    Sketcher.Constraint("Tangent", 11, 2, 0, 1),
    Sketcher.Constraint("Coincident", 12, 2, 13, 1),
    Sketcher.Constraint("Coincident", 13, 2, 14, 1),
    Sketcher.Constraint("Tangent", 14, 2, 15, 2),
    Sketcher.Constraint("Tangent", 15, 1, 16, 1),
    Sketcher.Constraint("Tangent", 16, 2, 17, 2),
    Sketcher.Constraint("Tangent", 17, 1, 18, 1),
    Sketcher.Constraint("Coincident", 18, 2, 19, 1),
    Sketcher.Constraint("Coincident", 19, 2, 12, 1),
    Sketcher.Constraint("Vertical", 0),
    Sketcher.Constraint("Horizontal", 1),
    Sketcher.Constraint("Horizontal", 4),
    Sketcher.Constraint("Horizontal", 7),
    Sketcher.Constraint("Vertical", 8),
    Sketcher.Constraint("Horizontal", 10),
    Sketcher.Constraint("Horizontal", 12),
    Sketcher.Constraint("Vertical", 14),
    Sketcher.Constraint("Horizontal", 16),
    Sketcher.Constraint("Vertical", 18),
    Sketcher.Constraint("Coincident", 13, 3, 2, 3),
    Sketcher.Constraint("Coincident", 15, 3, 11, 3),
    Sketcher.Constraint("Coincident", 17, 3, 9, 3),
    Sketcher.Constraint("Coincident", 19, 3, 6, 3),
    Sketcher.Constraint("Coincident", 12, 2, 3, 3),
    Sketcher.Constraint("Coincident", 19, 2, 5, 3),
    Sketcher.Constraint("Equal", 2, 6),
    Sketcher.Constraint("Equal", 9, 11),
    Sketcher.Constraint("Equal", 5, 15),
    Sketcher.Constraint("Horizontal", 2, 3, 3, 3),
    Sketcher.Constraint("Horizontal", 5, 3, 6, 3),
    Sketcher.Constraint("Vertical", 1, 2, 13, 2),
    Sketcher.Constraint("Vertical", 6, 1, 17, 1),
    Sketcher.Constraint("Radius", 2, 2.0),
    Sketcher.Constraint("Radius", 9, 1.0),
    Sketcher.Constraint("Radius", 3, 0.5),
    Sketcher.Constraint("DistanceY", 0, 1, 0, 2, 2.3),
    Sketcher.Constraint("DistanceX", 6, 3, -1, 1, 18.0),
    Sketcher.Constraint("DistanceX", 4, 2, 4, 1, 9.05),
    Sketcher.Constraint("DistanceY", 2, 3, -1, 1, 0.9),
])
pad4 = body.newObject("PartDesign::Pad", "Pad003")
pad4.Profile = sketch6
pad4.Length = 0.7

doc.recompute()
